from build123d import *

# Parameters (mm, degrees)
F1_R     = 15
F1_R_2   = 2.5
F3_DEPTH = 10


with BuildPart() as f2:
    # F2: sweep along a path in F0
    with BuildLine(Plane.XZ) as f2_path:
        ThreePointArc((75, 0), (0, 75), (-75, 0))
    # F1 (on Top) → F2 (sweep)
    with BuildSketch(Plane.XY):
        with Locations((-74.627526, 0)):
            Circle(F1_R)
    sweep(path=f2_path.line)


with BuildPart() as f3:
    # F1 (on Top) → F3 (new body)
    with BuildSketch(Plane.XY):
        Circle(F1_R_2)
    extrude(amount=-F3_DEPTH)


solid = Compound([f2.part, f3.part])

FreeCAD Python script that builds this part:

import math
import FreeCAD as App
import Part
import Sketcher
from FreeCAD import Vector

doc = App.newDocument("Part")
body = doc.addObject("PartDesign::Body", "Body")

sketch1 = doc.addObject("Sketcher::SketchObject", "Sketch")
body.addObject(sketch1)
sketch1.AttachmentSupport = (doc.XY_Plane, [""])
sketch1.MapMode = "FlatFace"
sketch1.addGeometry(Part.Circle(Vector(-74.627526, 0, 0), Vector(0, 0, 1), 15), False)
sketch1.addConstraint(Sketcher.Constraint("PointOnObject", 0, 3, -1))
sketch1.addConstraint(Sketcher.Constraint("Diameter", 0, 30.0))
sketch1.addConstraint(Sketcher.Constraint("DistanceX", 0, 3, -1, 1, 74.627526))

sketch2 = doc.addObject("Sketcher::SketchObject", "Sketch001")
body.addObject(sketch2)
sketch2.AttachmentSupport = (doc.XZ_Plane, [""])
sketch2.MapMode = "FlatFace"
sketch2.addGeometry(Part.ArcOfCircle(Part.Circle(Vector(0, 0, 0), Vector(0, 0, 1), 75), math.radians(0), math.radians(180)), False)
sketch2.addConstraint(Sketcher.Constraint("Coincident", 0, 3, -1, 1))
sketch2.addConstraint(Sketcher.Constraint("PointOnObject", 0, 1, -1))
sketch2.addConstraint(Sketcher.Constraint("PointOnObject", 0, 2, -1))
sketch2.addConstraint(Sketcher.Constraint("Radius", 0, 75.0))
doc.recompute()

additivepipe = doc.addObject("PartDesign::AdditivePipe", "AdditivePipe")
body.addObject(additivepipe)
additivepipe.Profile = sketch1
additivepipe.Spine = (sketch2, ["Edge1"])
body2 = doc.addObject("PartDesign::Body", "Body001")

sketch3 = doc.addObject("Sketcher::SketchObject", "Sketch002")
body2.addObject(sketch3)
sketch3.AttachmentSupport = (doc.getObject("XY_Plane001"), [""])
sketch3.MapMode = "FlatFace"
sketch3.addGeometry(Part.Circle(Vector(0, 0, 0), Vector(0, 0, 1), 2.5), False)
sketch3.addConstraint(Sketcher.Constraint("Coincident", 0, 3, -1, 1))
sketch3.addConstraint(Sketcher.Constraint("Diameter", 0, 5.0))
pad1 = doc.addObject("PartDesign::Pad", "Pad")
body2.addObject(pad1)
pad1.Profile = sketch3
pad1.Length = 10
pad1.Reversed = True

doc.recompute()
